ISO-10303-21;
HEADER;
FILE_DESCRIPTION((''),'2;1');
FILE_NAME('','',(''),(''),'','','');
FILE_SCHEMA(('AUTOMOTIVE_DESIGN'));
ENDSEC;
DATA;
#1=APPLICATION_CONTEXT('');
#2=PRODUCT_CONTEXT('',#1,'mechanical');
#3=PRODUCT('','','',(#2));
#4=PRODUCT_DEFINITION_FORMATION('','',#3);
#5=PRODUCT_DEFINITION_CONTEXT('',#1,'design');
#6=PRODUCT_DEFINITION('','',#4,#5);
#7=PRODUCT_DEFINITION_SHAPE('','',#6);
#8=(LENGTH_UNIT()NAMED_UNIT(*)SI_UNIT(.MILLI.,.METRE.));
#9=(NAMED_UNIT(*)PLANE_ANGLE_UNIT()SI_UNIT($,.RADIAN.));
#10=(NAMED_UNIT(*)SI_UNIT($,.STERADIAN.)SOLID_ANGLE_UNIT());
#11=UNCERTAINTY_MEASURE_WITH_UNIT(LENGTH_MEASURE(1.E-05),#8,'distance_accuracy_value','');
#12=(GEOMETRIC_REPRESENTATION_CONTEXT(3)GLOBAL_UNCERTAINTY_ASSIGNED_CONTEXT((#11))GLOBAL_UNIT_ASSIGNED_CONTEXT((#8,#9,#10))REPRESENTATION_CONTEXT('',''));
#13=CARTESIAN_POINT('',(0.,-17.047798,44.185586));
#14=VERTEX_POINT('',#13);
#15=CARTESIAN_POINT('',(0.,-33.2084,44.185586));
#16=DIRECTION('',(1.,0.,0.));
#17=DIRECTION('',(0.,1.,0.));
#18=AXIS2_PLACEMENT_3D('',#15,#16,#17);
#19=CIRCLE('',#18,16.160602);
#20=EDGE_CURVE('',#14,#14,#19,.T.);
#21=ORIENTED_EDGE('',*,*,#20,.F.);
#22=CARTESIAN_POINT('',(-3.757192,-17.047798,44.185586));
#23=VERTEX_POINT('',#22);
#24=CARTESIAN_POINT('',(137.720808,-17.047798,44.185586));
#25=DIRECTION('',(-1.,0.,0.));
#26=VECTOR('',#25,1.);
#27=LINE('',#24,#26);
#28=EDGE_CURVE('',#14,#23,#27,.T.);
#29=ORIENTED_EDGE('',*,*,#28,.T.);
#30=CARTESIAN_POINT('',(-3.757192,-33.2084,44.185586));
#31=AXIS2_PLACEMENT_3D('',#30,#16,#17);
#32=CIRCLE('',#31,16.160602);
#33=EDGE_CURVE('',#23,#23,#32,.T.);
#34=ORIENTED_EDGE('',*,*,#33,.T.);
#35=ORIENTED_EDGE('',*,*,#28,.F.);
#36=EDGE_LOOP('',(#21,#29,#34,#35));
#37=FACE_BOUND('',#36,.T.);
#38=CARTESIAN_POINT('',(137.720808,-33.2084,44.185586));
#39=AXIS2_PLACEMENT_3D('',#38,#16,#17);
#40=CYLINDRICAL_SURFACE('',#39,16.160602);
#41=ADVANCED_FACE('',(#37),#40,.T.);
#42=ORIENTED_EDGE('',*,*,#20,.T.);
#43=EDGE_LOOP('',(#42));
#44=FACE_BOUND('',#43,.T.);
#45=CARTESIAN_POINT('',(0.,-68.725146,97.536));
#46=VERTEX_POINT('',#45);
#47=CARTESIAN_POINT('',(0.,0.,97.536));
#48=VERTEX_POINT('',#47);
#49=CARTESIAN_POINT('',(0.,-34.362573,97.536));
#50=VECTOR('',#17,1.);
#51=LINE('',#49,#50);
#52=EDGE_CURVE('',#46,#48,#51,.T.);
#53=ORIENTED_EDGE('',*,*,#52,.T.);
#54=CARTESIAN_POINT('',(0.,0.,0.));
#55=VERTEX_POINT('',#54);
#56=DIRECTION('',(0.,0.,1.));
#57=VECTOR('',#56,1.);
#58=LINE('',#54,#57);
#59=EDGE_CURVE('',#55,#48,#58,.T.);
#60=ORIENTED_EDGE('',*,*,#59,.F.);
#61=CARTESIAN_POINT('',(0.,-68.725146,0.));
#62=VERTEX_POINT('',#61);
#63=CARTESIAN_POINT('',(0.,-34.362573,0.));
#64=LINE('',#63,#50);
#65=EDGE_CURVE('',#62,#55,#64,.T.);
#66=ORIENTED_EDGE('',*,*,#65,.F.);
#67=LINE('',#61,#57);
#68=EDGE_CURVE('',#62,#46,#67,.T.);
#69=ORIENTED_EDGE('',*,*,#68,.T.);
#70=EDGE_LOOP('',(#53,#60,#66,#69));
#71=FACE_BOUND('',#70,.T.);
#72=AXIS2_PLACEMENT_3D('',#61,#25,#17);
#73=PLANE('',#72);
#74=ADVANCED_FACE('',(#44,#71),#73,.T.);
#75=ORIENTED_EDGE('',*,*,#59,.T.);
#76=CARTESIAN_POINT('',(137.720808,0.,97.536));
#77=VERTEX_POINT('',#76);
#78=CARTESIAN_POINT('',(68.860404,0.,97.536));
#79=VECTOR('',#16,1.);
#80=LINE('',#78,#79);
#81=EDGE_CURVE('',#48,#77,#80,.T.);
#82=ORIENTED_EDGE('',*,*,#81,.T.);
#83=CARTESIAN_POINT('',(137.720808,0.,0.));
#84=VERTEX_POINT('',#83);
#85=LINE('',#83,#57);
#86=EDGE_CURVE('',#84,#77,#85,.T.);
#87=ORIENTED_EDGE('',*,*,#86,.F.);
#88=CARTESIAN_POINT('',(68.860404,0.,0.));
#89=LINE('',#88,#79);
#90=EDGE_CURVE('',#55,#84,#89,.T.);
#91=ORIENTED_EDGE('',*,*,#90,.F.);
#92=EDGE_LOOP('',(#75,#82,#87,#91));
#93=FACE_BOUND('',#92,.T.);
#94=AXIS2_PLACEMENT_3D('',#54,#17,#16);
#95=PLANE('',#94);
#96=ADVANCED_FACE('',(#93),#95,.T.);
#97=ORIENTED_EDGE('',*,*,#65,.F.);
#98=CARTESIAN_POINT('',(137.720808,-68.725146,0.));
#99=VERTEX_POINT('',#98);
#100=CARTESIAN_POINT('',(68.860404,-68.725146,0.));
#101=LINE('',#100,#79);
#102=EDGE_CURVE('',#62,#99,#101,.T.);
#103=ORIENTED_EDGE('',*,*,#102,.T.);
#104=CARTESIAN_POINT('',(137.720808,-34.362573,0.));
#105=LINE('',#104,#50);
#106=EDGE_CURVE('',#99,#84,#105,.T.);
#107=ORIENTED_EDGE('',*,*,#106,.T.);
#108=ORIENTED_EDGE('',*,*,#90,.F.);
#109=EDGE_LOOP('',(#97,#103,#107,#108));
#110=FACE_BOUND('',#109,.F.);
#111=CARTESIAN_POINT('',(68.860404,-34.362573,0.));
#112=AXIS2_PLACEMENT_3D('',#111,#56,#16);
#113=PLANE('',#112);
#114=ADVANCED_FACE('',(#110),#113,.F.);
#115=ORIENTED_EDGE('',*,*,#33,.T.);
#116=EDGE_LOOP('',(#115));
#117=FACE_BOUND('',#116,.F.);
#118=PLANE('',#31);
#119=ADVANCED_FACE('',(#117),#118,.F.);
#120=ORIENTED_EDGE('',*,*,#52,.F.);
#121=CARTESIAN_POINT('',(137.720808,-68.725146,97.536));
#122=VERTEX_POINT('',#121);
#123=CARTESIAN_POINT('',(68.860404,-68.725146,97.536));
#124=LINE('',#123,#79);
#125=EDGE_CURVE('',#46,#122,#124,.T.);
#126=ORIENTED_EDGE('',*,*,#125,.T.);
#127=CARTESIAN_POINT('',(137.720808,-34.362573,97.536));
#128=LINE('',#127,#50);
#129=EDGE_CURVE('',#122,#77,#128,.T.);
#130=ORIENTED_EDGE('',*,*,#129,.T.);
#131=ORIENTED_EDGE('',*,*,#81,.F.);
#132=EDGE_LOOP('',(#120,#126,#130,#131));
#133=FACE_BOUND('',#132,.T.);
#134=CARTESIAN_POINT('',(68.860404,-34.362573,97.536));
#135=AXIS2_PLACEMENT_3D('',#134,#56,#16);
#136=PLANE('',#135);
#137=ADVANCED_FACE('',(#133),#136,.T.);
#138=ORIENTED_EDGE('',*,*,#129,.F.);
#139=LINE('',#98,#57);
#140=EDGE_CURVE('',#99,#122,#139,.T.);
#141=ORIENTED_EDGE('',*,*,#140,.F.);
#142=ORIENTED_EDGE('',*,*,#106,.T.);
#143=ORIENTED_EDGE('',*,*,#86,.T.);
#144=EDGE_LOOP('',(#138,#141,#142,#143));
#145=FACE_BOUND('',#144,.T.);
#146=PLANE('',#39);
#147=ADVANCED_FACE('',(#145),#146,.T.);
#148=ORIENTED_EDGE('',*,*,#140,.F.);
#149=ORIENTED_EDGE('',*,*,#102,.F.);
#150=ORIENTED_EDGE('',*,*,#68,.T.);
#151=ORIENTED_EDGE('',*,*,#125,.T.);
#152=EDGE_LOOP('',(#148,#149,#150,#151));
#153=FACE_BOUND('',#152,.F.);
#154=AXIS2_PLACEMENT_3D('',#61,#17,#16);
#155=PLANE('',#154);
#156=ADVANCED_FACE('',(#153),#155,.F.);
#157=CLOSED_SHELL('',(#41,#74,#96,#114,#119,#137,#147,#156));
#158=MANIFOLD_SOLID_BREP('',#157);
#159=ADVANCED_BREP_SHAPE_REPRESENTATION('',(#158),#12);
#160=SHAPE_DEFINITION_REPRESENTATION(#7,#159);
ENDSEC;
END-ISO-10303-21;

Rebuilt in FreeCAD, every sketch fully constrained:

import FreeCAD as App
import Part
import Sketcher

V = App.Vector
Q = App.Units.Quantity

doc = App.newDocument("Part")
params = doc.addObject("Spreadsheet::Sheet", "Params")
for row, (alias, value) in enumerate([
    ("pad1_length", "3.84 in"),
    ("pad2_length", "5.57 in"),
], start=1):
    params.set(f"A{row}", alias)
    params.set(f"B{row}", "=" + value)
    params.setAlias(f"B{row}", alias)

body = doc.addObject("PartDesign::Body", "Body")

# Sketch on XY plane
sketch1 = body.newObject("Sketcher::SketchObject", "Sketch")
sketch1.AttachmentSupport = (doc.getObject("XY_Plane"), [""])
sketch1.MapMode = "FlatFace"
sketch1.addGeometry(Part.LineSegment(V(0, 0, 0), V(0, -69, 0)), False)
sketch1.addGeometry(Part.LineSegment(V(0, -69, 0), V(138, -69, 0)), False)
sketch1.addGeometry(Part.LineSegment(V(138, -69, 0), V(138, 0, 0)), False)
sketch1.addGeometry(Part.LineSegment(V(138, 0, 0), V(0, 0, 0)), False)
sketch1.addConstraint(Sketcher.Constraint("Coincident", 0, 2, 1, 1))
sketch1.addConstraint(Sketcher.Constraint("Coincident", 1, 2, 2, 1))
sketch1.addConstraint(Sketcher.Constraint("Coincident", 2, 2, 3, 1))
sketch1.addConstraint(Sketcher.Constraint("Coincident", 3, 2, 0, 1))
sketch1.addConstraint(Sketcher.Constraint("Vertical", 0))
sketch1.addConstraint(Sketcher.Constraint("Horizontal", 1))
sketch1.addConstraint(Sketcher.Constraint("Vertical", 2))
sketch1.addConstraint(Sketcher.Constraint("Horizontal", 3))
sketch1.addConstraint(Sketcher.Constraint("Coincident", 3, 2, -1, 1))
sketch1.addConstraint(Sketcher.Constraint("DistanceX", 1, 1, 1, 2, Q("137.720808 mm")))
sketch1.addConstraint(Sketcher.Constraint("DistanceY", 0, 2, 0, 1, Q("68.725146 mm")))
pad1 = body.newObject("PartDesign::Pad", "Pad")
pad1.Profile = sketch1
pad1.setExpression("Length", "Params.pad1_length")

# Sketch on YZ plane
sketch2 = body.newObject("Sketcher::SketchObject", "Sketch001")
sketch2.AttachmentSupport = (doc.getObject("YZ_Plane"), [""])
sketch2.MapMode = "FlatFace"
sketch2.AttachmentOffset = App.Placement(V(0, 0, 137.720808), App.Rotation())
sketch2.addGeometry(Part.Circle(V(-33, 44, 0), V(0, 0, 1), 16), False)
sketch2.addConstraint(Sketcher.Constraint("Diameter", 0, Q("32.321204 mm")))
sketch2.addConstraint(Sketcher.Constraint("DistanceX", 0, 3, -1, 1, Q("33.2084 mm")))
sketch2.addConstraint(Sketcher.Constraint("DistanceY", -1, 1, 0, 3, Q("44.185586 mm")))
pad2 = body.newObject("PartDesign::Pad", "Pad001")
pad2.Profile = sketch2
pad2.setExpression("Length", "Params.pad2_length")
pad2.Reversed = True

doc.recompute()
